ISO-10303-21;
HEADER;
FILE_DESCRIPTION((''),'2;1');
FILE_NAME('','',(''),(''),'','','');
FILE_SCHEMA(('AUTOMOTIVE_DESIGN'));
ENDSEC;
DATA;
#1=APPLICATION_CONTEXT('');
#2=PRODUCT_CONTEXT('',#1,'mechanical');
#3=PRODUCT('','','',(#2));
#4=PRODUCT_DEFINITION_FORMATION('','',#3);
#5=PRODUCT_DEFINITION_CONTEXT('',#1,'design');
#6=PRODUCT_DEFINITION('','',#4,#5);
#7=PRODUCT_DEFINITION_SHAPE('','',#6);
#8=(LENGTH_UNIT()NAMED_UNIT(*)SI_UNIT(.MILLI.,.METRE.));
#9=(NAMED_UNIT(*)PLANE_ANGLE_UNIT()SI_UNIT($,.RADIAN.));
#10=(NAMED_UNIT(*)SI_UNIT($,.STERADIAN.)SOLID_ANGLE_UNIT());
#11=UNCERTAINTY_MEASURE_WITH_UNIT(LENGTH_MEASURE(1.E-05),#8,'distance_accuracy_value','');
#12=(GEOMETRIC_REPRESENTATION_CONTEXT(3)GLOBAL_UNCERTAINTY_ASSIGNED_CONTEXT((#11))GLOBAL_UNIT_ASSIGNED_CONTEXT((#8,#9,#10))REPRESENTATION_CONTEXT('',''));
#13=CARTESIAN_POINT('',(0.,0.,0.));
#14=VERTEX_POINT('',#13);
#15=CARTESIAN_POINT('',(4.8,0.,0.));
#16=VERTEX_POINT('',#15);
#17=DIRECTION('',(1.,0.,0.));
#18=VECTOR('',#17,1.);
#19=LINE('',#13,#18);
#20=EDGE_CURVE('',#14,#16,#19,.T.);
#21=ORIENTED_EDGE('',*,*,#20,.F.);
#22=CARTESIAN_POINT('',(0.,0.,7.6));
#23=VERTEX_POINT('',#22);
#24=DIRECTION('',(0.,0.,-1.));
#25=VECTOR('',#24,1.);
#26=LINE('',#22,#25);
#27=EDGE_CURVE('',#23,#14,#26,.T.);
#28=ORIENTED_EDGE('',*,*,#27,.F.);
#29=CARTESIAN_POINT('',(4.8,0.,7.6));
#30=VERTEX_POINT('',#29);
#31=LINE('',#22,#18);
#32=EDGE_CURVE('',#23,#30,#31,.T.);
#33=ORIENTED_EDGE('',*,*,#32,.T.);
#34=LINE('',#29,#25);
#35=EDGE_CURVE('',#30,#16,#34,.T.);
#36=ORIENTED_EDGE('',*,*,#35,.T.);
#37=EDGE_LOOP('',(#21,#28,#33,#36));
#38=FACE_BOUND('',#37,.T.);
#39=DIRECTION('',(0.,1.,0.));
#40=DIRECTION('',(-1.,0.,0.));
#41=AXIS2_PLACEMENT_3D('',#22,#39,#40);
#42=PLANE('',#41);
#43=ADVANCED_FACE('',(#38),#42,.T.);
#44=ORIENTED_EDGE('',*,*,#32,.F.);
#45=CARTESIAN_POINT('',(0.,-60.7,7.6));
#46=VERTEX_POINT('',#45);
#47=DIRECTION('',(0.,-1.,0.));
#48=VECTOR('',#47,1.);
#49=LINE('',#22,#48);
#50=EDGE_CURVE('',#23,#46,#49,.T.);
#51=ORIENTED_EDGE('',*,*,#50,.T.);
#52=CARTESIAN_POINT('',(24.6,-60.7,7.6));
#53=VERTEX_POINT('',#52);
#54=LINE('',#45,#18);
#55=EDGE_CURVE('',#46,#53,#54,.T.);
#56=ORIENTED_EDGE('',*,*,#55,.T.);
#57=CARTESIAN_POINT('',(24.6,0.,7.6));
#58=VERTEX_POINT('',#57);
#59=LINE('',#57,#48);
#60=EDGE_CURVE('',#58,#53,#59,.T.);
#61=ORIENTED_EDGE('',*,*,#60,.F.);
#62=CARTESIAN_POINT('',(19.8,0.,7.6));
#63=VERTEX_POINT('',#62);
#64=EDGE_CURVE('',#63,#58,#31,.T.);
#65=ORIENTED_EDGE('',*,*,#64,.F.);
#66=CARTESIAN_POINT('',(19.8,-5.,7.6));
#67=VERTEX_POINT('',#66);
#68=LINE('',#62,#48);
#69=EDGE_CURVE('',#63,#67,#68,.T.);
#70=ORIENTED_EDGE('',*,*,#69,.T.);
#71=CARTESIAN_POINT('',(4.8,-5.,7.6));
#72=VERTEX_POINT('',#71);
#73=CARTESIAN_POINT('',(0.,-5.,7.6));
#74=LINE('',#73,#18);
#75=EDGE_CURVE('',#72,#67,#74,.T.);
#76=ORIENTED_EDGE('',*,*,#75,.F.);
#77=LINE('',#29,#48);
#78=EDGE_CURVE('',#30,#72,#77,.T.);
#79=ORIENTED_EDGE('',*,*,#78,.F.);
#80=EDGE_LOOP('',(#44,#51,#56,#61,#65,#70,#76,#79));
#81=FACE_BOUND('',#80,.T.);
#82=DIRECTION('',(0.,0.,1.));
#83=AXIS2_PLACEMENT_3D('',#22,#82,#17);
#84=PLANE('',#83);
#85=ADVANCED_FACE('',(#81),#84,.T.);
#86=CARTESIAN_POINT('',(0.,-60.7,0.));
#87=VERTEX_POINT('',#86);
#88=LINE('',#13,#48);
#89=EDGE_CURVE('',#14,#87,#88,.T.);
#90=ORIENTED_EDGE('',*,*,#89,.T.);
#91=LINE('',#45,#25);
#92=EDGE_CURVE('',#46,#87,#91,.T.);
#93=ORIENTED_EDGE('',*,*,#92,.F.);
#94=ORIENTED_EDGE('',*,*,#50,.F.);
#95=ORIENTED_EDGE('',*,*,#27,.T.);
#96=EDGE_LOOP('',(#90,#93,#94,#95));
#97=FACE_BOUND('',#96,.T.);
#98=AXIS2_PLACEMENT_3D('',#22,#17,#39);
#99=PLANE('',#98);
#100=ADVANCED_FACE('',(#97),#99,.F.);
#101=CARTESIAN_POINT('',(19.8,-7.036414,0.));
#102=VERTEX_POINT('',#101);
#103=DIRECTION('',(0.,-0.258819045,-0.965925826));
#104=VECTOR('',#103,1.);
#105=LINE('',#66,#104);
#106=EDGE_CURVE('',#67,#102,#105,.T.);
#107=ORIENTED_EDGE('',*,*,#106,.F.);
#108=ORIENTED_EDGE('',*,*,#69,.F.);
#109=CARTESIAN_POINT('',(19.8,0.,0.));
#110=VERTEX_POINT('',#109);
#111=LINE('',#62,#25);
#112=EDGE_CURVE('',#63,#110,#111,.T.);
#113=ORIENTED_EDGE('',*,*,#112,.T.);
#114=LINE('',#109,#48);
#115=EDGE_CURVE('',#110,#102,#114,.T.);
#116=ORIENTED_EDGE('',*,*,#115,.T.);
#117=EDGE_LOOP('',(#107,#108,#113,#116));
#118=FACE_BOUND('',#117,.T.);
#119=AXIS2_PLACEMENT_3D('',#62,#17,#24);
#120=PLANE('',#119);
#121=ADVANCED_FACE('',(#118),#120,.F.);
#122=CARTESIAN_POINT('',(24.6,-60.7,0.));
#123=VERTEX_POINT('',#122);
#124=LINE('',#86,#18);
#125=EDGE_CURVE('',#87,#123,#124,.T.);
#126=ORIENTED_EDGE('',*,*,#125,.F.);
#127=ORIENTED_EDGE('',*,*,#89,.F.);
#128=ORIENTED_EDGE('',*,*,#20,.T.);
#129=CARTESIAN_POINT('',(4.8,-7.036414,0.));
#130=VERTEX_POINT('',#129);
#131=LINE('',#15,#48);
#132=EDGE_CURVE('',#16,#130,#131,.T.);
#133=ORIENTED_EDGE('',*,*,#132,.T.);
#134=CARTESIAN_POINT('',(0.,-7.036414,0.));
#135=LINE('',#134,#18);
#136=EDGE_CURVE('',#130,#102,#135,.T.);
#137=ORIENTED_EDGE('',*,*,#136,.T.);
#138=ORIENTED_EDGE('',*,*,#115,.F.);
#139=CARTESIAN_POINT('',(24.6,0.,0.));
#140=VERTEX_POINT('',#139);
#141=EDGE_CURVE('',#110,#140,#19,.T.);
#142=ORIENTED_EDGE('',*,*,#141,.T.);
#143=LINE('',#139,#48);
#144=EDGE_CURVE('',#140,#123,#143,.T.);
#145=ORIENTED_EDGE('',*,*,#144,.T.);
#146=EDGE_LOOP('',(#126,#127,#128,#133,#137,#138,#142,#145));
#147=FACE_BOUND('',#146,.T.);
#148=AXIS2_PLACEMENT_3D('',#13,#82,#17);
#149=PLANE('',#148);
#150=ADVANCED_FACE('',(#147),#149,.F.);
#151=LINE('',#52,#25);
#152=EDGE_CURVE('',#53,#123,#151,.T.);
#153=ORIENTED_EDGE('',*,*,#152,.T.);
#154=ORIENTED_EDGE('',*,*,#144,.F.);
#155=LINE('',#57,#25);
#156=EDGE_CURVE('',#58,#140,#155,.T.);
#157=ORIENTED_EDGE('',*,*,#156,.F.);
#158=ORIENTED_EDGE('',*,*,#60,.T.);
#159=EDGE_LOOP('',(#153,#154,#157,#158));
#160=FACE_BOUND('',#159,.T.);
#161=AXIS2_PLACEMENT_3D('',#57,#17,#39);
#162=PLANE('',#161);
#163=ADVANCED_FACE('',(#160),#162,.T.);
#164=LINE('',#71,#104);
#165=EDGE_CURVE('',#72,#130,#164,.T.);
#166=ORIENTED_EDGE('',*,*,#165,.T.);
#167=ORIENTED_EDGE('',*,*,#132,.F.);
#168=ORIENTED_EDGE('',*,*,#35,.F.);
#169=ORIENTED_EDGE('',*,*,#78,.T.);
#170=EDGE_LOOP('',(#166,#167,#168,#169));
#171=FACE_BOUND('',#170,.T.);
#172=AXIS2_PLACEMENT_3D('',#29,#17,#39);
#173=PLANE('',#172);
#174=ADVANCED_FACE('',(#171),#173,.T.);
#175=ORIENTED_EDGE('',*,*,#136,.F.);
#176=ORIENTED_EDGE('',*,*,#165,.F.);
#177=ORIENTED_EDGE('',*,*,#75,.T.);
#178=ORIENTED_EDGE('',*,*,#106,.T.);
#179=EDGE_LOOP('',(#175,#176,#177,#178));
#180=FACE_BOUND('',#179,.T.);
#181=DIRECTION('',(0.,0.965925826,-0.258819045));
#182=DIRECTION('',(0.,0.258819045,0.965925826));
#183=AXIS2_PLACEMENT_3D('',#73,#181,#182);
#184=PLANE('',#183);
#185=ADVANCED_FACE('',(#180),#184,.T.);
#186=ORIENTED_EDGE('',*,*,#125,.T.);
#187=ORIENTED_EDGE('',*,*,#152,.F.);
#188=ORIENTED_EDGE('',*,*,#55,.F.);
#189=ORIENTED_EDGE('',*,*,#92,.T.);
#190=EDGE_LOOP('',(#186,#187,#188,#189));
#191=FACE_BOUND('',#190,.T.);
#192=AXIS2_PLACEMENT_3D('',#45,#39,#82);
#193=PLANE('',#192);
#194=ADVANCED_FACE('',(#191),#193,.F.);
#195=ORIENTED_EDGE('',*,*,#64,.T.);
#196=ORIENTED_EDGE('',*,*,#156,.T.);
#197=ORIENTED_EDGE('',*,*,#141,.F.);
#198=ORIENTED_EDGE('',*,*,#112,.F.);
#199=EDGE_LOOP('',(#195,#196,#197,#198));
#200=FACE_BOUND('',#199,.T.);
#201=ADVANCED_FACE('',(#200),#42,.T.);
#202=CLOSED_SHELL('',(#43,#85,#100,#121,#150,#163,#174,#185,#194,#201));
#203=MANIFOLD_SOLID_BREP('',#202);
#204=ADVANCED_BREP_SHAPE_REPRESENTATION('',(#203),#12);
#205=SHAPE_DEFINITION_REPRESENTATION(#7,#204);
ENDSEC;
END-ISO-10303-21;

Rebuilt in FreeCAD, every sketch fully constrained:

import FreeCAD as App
import Part
import Sketcher


def faces_at(feature, points):
    """Names of the faces that lie closest to the given points."""
    faces = feature.Shape.Faces
    near = lambda p: min(range(len(faces)), key=lambda i: faces[i].distToShape(Part.Vertex(*p))[0])
    return sorted({f"Face{near(p) + 1}" for p in points})


def add_polygon(sketch, points):
    """Adds a closed chain of lines whose ends are joined by coincident constraints."""
    first, n = sketch.GeometryCount, len(points)
    for a, b in zip(points, points[1:] + points[:1]):
        sketch.addGeometry(Part.LineSegment(App.Vector(*a, 0), App.Vector(*b, 0)), False)
    for i in range(n):
        sketch.addConstraint(Sketcher.Constraint("Coincident", first + i, 2, first + (i + 1) % n, 1))

doc = App.newDocument("Part")
body = doc.addObject("PartDesign::Body", "Body")

sketch1 = body.newObject("Sketcher::SketchObject", "Sketch")
sketch1.AttachmentSupport = (doc.getObject("XY_Plane"), [""])
sketch1.MapMode = "FlatFace"
add_polygon(sketch1, [(4.8, 0), (0, 0), (0, -60.7), (24.6, -60.7), (24.6, 0), (19.8, 0), (19.8, -5), (4.8, -5)])
sketch1.addConstraint([
    Sketcher.Constraint("Horizontal", 0),
    Sketcher.Constraint("Vertical", 1),
    Sketcher.Constraint("Horizontal", 2),
    Sketcher.Constraint("Vertical", 3),
    Sketcher.Constraint("Horizontal", 4),
    Sketcher.Constraint("Vertical", 5),
    Sketcher.Constraint("Horizontal", 6),
    Sketcher.Constraint("Vertical", 7),
    Sketcher.Constraint("Coincident", 0, 2, -1, 1),
    Sketcher.Constraint("PointOnObject", 3, 2, -1),
    Sketcher.Constraint("Equal", 0, 4),
    Sketcher.Constraint("DistanceX", 6, 2, 6, 1, 15.0),
    Sketcher.Constraint("DistanceY", 5, 2, 5, 1, 5.0),
    Sketcher.Constraint("DistanceX", 0, 2, 0, 1, 4.8),
    Sketcher.Constraint("DistanceY", 1, 2, 1, 1, 60.7),
])
pad1 = body.newObject("PartDesign::Pad", "Pad")
pad1.Profile = sketch1
pad1.Length = 7.6
doc.recompute()

datumplane = body.newObject("PartDesign::Plane", "DatumPlane")
datumplane.AttachmentSupport = (doc.getObject("XY_Plane"), [""])
datumplane.MapMode = "FlatFace"
datumplane.AttachmentOffset = App.Placement(App.Vector(0, 0, 7.6), App.Rotation())
draft = body.newObject("PartDesign::Draft", "Draft")
draft.Base = (pad1, faces_at(pad1, [(12.3, -5, 3.8)]))
draft.NeutralPlane = (datumplane, [""])
draft.Angle = 15
draft.Reversed = True

doc.recompute()
